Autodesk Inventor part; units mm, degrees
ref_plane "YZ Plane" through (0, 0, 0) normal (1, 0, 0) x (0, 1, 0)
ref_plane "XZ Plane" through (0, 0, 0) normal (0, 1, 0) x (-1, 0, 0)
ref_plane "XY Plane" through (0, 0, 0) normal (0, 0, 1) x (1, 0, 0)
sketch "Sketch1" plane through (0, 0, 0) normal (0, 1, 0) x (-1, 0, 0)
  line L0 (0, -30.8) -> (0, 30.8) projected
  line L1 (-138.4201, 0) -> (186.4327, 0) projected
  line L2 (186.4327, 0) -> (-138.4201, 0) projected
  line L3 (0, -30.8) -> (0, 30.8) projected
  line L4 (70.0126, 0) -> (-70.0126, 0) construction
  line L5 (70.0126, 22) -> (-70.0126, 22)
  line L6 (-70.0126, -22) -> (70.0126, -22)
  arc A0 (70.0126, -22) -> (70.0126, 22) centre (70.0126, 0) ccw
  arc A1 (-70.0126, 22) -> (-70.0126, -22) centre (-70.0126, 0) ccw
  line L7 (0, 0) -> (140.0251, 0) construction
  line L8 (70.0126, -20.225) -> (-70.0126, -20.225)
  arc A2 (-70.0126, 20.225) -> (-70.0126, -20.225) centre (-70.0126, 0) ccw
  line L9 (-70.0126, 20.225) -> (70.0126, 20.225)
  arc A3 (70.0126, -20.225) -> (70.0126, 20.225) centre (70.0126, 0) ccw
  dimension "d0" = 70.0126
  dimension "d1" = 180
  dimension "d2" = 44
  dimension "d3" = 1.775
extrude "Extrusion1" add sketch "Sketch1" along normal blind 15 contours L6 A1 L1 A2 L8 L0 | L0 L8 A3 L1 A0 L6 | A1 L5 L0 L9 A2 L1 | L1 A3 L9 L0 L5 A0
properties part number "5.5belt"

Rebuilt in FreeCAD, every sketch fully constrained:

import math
import FreeCAD as App
import Part
import Sketcher

doc = App.newDocument("Part")
params = doc.addObject("Spreadsheet::Sheet", "Params")
for row, (alias, value) in enumerate([
    ("sketch1_radius", "22 mm"),
    ("pad1_length", "15 mm"),
], start=1):
    params.set(f"A{row}", alias)
    params.set(f"B{row}", "=" + value)
    params.setAlias(f"B{row}", alias)

body = doc.addObject("PartDesign::Body", "Body")

# Sketch on XZ plane
sketch1 = body.newObject("Sketcher::SketchObject", "Sketch")
sketch1.AttachmentSupport = (doc.getObject("XZ_Plane"), [""])
sketch1.MapMode = "FlatFace"
sketch1.addGeometry([
    Part.LineSegment(App.Vector(70.0126, -22, 0), App.Vector(-70.0126, -22, 0)),  # 0
    Part.ArcOfCircle(Part.Circle(App.Vector(-70.0126, 0, 0), App.Vector(0, 0, 1), 22), math.radians(90), math.radians(270)),  # 1
    Part.LineSegment(App.Vector(-70.0126, 22, 0), App.Vector(70.0126, 22, 0)),  # 2
    Part.ArcOfCircle(Part.Circle(App.Vector(70.0126, 0, 0), App.Vector(0, 0, 1), 22), math.radians(-90), math.radians(90)),  # 3
    Part.ArcOfCircle(Part.Circle(App.Vector(70.0126, 0, 0), App.Vector(0, 0, 1), 20.225), math.radians(-90), math.radians(90)),  # 4
    Part.LineSegment(App.Vector(70.0126, 20.225, 0), App.Vector(-70.0126, 20.225, 0)),  # 5
    Part.ArcOfCircle(Part.Circle(App.Vector(-70.0126, 0, 0), App.Vector(0, 0, 1), 20.225), math.radians(90), math.radians(270)),  # 6
    Part.LineSegment(App.Vector(-70.0126, -20.225, 0), App.Vector(70.0126, -20.225, 0)),  # 7
], False)
sketch1.addConstraint([
    Sketcher.Constraint("Tangent", 0, 2, 1, 2),
    Sketcher.Constraint("Tangent", 1, 1, 2, 1),
    Sketcher.Constraint("Tangent", 2, 2, 3, 2),
    Sketcher.Constraint("Tangent", 3, 1, 0, 1),
    Sketcher.Constraint("Tangent", 4, 2, 5, 1),
    Sketcher.Constraint("Tangent", 5, 2, 6, 1),
    Sketcher.Constraint("Tangent", 6, 2, 7, 1),
    Sketcher.Constraint("Tangent", 7, 2, 4, 1),
    Sketcher.Constraint("Horizontal", 0),
    Sketcher.Constraint("Horizontal", 2),
    Sketcher.Constraint("Horizontal", 5),
    Sketcher.Constraint("Horizontal", 7),
    Sketcher.Constraint("Coincident", 4, 3, 3, 3),
    Sketcher.Constraint("Symmetric", 1, 3, 3, 3, -1, 1),
    Sketcher.Constraint("Vertical", 6, 3, 0, 2),
    Sketcher.Constraint("Radius", 1, 22.0),
    Sketcher.Constraint("Radius", 4, 20.225),
    Sketcher.Constraint("DistanceX", 1, 3, -1, 1, 70.0126),
])
sketch1.setExpression("Constraints[15]", "Params.sketch1_radius")
pad1 = body.newObject("PartDesign::Pad", "Pad")
pad1.Profile = sketch1
pad1.setExpression("Length", "Params.pad1_length")
pad1.Reversed = True

doc.recompute()
